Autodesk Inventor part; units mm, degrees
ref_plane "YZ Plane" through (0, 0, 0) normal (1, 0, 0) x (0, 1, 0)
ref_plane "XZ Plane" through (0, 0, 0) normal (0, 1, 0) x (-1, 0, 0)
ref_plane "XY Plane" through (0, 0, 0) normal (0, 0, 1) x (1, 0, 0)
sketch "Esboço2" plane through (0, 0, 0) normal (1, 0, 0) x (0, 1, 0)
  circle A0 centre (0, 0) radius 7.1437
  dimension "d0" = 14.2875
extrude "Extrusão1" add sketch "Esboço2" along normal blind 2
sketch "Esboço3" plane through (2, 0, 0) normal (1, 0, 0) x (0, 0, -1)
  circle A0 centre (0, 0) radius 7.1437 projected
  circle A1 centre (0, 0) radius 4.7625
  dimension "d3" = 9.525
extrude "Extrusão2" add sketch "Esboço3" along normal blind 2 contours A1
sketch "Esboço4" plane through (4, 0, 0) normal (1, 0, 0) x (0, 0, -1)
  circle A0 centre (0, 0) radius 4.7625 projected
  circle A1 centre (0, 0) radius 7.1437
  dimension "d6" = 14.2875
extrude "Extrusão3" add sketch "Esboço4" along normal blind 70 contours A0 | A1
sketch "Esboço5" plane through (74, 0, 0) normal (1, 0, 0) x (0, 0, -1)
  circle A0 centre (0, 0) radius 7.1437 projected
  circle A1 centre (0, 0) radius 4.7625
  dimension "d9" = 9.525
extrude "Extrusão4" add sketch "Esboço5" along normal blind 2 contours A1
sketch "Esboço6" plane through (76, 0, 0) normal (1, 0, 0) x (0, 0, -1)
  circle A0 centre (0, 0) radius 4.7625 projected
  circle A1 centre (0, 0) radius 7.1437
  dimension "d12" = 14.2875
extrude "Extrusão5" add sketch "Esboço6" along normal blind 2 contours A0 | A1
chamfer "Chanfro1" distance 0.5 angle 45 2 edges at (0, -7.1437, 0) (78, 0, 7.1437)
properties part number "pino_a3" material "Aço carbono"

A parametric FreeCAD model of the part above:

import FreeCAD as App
import Part
import Sketcher
from FreeCAD import Vector
Q = App.Units.Quantity


def edges_at(feature, points):
    """Names of the edges that pass closest to the given points."""
    edges = feature.Shape.Edges
    near = lambda p: min(range(len(edges)), key=lambda i: edges[i].distToShape(Part.Vertex(*p))[0])
    return sorted({f"Edge{near(p) + 1}" for p in points})

doc = App.newDocument("Part")
body = doc.addObject("PartDesign::Body", "Body")

sketch1 = body.newObject("Sketcher::SketchObject", "Sketch")
sketch1.AttachmentSupport = (doc.getObject("YZ_Plane"), [""])
sketch1.MapMode = "FlatFace"
sketch1.addGeometry(Part.Circle(Vector(0, 0, 0), Vector(0, 0, 1), 7), False)
sketch1.addConstraint(Sketcher.Constraint("Coincident", 0, 3, -1, 1))
sketch1.addConstraint(Sketcher.Constraint("Diameter", 0, Q("14.2874 mm")))
pad1 = body.newObject("PartDesign::Pad", "Pad")
pad1.Profile = sketch1
pad1.Length = 2

sketch2 = body.newObject("Sketcher::SketchObject", "Sketch001")
sketch2.AttachmentSupport = (doc.getObject("YZ_Plane"), [""])
sketch2.MapMode = "FlatFace"
sketch2.AttachmentOffset = App.Placement(Vector(0, 0, 2), App.Rotation())
sketch2.addGeometry(Part.Circle(Vector(0, 0, 0), Vector(0, 0, 1), 4.8), False)
sketch2.addConstraint(Sketcher.Constraint("Coincident", 0, 3, -1, 1))
sketch2.addConstraint(Sketcher.Constraint("Diameter", 0, Q("9.525 mm")))
pad2 = body.newObject("PartDesign::Pad", "Pad001")
pad2.Profile = sketch2
pad2.Length = 2

sketch3 = body.newObject("Sketcher::SketchObject", "Sketch002")
sketch3.AttachmentSupport = (doc.getObject("YZ_Plane"), [""])
sketch3.MapMode = "FlatFace"
sketch3.AttachmentOffset = App.Placement(Vector(0, 0, 4), App.Rotation())
sketch3.addGeometry(Part.Circle(Vector(0, 0, 0), Vector(0, 0, 1), 7), False)
sketch3.addConstraint(Sketcher.Constraint("Coincident", 0, 3, -1, 1))
sketch3.addConstraint(Sketcher.Constraint("Diameter", 0, Q("14.2874 mm")))
pad3 = body.newObject("PartDesign::Pad", "Pad002")
pad3.Profile = sketch3
pad3.Length = 70

sketch4 = body.newObject("Sketcher::SketchObject", "Sketch003")
sketch4.AttachmentSupport = (doc.getObject("YZ_Plane"), [""])
sketch4.MapMode = "FlatFace"
sketch4.AttachmentOffset = App.Placement(Vector(0, 0, 74), App.Rotation())
sketch4.addGeometry(Part.Circle(Vector(0, 0, 0), Vector(0, 0, 1), 4.8), False)
sketch4.addConstraint(Sketcher.Constraint("Coincident", 0, 3, -1, 1))
sketch4.addConstraint(Sketcher.Constraint("Diameter", 0, Q("9.525 mm")))
pad4 = body.newObject("PartDesign::Pad", "Pad003")
pad4.Profile = sketch4
pad4.Length = 2

sketch5 = body.newObject("Sketcher::SketchObject", "Sketch004")
sketch5.AttachmentSupport = (doc.getObject("YZ_Plane"), [""])
sketch5.MapMode = "FlatFace"
sketch5.AttachmentOffset = App.Placement(Vector(0, 0, 76), App.Rotation())
sketch5.addGeometry(Part.Circle(Vector(0, 0, 0), Vector(0, 0, 1), 7), False)
sketch5.addConstraint(Sketcher.Constraint("Coincident", 0, 3, -1, 1))
sketch5.addConstraint(Sketcher.Constraint("Diameter", 0, Q("14.2874 mm")))
pad5 = body.newObject("PartDesign::Pad", "Pad004")
pad5.Profile = sketch5
pad5.Length = 2
doc.recompute()

chamfer = body.newObject("PartDesign::Chamfer", "Chamfer")
chamfer.Base = (pad5, edges_at(pad5, [(0, -7.144, 0), (78, 0, 7.144)]))
chamfer.Size = 0.5

doc.recompute()
